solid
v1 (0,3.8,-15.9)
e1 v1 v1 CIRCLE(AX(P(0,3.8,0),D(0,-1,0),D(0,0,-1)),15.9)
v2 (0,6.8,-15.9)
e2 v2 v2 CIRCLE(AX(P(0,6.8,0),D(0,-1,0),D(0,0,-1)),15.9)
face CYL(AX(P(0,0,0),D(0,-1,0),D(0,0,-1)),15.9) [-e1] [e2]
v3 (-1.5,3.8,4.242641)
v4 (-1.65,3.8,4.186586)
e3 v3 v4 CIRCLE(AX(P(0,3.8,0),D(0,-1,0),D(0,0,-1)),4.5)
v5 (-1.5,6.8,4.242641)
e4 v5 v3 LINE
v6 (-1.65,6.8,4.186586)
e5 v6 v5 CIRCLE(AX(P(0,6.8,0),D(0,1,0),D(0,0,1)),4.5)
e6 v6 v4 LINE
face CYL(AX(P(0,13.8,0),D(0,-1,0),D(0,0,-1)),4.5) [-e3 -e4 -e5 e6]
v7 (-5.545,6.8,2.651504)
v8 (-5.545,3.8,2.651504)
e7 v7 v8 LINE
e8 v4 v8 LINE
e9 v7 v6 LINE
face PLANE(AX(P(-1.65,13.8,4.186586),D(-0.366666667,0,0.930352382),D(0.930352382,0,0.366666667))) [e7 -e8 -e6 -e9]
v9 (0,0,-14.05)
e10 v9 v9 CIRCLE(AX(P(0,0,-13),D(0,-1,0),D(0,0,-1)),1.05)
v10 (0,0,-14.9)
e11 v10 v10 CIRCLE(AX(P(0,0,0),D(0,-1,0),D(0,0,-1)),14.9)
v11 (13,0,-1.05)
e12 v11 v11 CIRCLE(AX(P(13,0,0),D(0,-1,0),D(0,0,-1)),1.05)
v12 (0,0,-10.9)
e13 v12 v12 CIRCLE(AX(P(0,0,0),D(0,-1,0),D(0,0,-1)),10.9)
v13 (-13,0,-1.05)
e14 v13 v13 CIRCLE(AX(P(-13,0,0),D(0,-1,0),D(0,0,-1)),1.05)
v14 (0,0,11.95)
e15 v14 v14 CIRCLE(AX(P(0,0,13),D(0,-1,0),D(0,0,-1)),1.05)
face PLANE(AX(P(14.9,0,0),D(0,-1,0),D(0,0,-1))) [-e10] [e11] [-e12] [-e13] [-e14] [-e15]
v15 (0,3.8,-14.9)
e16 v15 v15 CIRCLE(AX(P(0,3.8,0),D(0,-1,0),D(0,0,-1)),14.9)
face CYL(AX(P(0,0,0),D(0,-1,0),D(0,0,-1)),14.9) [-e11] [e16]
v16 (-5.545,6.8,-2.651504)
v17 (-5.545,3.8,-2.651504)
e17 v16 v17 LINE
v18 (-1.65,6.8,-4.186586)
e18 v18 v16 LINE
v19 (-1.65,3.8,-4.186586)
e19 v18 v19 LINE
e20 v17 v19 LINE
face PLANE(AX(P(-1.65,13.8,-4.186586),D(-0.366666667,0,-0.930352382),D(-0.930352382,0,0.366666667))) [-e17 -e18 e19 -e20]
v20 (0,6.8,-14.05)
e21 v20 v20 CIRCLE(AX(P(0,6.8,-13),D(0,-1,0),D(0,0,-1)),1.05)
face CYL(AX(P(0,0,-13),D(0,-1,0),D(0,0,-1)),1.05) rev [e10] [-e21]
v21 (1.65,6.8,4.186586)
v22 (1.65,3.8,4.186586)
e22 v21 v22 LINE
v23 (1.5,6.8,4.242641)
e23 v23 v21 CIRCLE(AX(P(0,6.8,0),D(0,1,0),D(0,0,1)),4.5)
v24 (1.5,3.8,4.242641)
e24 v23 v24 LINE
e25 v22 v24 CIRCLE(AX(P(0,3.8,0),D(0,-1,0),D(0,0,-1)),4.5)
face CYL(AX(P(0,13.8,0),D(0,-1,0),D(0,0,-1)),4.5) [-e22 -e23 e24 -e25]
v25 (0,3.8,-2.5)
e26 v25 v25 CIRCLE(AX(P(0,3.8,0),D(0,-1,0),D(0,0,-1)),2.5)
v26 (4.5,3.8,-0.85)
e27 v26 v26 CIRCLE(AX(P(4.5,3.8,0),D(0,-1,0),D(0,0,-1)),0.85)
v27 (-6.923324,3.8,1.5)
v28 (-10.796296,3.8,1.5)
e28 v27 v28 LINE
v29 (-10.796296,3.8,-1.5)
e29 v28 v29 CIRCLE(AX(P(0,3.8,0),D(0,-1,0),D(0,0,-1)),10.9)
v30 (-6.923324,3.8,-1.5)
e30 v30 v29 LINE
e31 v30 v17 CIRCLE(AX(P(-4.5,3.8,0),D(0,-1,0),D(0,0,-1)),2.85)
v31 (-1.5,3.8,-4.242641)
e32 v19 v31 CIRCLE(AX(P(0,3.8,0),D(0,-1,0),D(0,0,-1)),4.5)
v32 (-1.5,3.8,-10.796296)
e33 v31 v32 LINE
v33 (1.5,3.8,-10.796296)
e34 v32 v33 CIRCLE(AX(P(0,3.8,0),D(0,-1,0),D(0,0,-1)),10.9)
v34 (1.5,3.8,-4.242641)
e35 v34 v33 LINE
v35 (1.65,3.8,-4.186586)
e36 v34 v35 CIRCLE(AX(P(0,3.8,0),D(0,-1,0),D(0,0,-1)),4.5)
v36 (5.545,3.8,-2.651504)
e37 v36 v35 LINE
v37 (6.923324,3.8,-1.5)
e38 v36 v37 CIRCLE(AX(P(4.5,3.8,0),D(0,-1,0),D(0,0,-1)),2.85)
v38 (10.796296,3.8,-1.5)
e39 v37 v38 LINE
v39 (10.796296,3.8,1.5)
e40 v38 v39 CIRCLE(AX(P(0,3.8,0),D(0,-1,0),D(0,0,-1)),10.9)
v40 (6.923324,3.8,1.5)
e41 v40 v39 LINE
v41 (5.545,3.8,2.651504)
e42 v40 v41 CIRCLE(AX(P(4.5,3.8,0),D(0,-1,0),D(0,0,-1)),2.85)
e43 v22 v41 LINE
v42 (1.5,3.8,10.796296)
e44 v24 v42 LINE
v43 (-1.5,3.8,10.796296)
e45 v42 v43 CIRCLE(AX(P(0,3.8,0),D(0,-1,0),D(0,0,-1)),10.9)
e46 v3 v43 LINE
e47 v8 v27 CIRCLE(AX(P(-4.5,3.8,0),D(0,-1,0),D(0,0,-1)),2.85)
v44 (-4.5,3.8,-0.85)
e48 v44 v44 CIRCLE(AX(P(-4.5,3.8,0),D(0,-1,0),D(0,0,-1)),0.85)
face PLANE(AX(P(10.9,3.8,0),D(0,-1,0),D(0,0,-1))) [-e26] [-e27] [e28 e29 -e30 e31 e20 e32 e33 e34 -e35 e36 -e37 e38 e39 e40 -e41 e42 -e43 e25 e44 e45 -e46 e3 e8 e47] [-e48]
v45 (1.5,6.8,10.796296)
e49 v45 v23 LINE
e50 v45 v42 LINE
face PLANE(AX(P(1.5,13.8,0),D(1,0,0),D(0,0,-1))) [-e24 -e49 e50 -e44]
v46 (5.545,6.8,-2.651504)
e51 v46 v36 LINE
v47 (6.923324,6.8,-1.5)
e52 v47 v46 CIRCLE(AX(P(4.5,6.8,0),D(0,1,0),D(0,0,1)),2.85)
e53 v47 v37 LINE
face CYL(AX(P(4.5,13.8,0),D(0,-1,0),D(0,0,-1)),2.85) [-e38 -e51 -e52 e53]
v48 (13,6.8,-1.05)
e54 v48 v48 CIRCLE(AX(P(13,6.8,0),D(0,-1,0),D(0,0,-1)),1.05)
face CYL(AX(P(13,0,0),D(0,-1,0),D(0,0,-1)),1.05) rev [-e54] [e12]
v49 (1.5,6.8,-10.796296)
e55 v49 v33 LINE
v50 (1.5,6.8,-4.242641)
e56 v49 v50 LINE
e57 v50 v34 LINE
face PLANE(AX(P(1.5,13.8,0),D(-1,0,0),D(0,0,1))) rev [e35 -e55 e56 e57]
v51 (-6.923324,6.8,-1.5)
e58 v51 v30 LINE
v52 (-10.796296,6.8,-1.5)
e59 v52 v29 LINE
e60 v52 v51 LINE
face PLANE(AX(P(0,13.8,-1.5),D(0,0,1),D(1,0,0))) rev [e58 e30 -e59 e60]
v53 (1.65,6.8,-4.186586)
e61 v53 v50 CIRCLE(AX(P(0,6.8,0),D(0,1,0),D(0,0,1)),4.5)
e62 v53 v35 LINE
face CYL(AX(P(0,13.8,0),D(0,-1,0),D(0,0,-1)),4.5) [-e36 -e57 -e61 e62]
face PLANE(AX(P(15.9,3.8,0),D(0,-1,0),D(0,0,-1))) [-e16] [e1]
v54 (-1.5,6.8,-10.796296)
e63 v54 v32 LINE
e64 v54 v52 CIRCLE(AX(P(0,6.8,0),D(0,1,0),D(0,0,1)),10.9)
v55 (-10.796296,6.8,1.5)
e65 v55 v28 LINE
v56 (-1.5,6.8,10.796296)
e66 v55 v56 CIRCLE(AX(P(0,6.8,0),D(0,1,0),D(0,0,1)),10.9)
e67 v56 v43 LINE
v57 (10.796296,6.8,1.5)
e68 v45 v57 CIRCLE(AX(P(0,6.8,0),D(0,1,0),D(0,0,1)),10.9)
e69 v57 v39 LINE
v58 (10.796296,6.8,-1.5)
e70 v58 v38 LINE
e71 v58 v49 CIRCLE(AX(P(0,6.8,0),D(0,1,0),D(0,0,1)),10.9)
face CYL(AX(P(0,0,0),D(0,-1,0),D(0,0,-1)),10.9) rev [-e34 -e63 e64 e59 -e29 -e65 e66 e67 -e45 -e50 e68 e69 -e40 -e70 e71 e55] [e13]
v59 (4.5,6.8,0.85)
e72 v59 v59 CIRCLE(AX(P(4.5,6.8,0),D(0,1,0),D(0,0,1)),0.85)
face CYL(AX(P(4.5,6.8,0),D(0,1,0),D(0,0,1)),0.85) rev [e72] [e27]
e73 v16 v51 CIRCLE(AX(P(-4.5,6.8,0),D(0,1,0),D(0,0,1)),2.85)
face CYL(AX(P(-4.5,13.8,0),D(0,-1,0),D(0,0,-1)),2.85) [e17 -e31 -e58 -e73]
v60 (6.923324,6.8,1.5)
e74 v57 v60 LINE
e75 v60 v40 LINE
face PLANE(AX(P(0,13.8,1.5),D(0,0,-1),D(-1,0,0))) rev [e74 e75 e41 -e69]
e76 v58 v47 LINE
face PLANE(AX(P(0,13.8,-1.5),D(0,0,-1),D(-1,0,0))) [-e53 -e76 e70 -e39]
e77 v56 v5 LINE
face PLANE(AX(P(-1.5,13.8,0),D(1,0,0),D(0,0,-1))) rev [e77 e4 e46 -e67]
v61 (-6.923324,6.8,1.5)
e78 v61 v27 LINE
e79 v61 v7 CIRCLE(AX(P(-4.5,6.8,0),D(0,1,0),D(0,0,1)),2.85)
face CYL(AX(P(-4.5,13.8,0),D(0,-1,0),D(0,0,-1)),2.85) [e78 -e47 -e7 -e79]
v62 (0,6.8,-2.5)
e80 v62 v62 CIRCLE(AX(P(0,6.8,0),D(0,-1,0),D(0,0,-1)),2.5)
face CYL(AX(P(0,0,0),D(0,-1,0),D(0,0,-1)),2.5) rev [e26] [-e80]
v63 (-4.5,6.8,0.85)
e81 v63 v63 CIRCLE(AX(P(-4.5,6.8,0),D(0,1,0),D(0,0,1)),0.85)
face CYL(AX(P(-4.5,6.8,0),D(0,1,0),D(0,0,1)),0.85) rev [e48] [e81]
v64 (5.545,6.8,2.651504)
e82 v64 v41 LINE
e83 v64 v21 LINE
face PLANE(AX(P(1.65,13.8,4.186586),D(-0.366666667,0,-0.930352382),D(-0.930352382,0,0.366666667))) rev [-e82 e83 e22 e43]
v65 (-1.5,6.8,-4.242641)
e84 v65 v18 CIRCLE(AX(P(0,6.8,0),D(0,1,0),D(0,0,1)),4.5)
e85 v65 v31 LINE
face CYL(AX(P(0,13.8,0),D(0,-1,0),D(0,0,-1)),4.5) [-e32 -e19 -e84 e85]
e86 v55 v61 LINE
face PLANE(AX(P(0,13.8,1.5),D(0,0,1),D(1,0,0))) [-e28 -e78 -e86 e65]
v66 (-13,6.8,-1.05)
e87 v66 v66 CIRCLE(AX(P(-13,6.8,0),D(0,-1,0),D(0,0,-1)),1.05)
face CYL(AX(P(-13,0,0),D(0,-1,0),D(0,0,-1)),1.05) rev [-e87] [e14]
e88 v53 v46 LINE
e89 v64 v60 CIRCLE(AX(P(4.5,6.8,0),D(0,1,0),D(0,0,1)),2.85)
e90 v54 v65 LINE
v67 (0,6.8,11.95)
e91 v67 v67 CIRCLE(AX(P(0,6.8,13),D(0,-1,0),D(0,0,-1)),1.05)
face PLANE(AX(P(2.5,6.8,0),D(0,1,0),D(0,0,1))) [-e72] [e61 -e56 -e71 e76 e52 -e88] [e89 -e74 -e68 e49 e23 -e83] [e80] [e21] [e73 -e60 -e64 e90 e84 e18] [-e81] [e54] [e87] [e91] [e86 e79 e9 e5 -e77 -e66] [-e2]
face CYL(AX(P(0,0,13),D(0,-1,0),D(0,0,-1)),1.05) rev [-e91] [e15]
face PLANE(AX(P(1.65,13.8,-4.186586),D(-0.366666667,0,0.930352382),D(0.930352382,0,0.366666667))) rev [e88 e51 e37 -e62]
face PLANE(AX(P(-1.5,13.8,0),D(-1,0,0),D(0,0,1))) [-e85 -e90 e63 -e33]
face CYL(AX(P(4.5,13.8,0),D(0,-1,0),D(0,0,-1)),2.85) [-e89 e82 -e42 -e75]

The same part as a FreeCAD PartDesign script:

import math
import FreeCAD as App
import Part
import Sketcher


def add_polygon(sketch, points):
    """Adds a closed chain of lines whose ends are joined by coincident constraints."""
    first, n = sketch.GeometryCount, len(points)
    for a, b in zip(points, points[1:] + points[:1]):
        sketch.addGeometry(Part.LineSegment(App.Vector(*a, 0), App.Vector(*b, 0)), False)
    for i in range(n):
        sketch.addConstraint(Sketcher.Constraint("Coincident", first + i, 2, first + (i + 1) % n, 1))

doc = App.newDocument("Part")
body = doc.addObject("PartDesign::Body", "Body")

sketch1 = doc.addObject("Sketcher::SketchObject", "Sketch")
body.addObject(sketch1)
sketch1.AttachmentSupport = (doc.XY_Plane, [""])
sketch1.MapMode = "FlatFace"
add_polygon(sketch1, [(15.9, 6.8), (2.5, 6.8), (2.5, 3.8), (10.9, 3.8), (10.9, 0), (14.9, 0), (14.9, 3.8), (15.9, 3.8)])
sketch1.addConstraint([
    Sketcher.Constraint("Horizontal", 0),
    Sketcher.Constraint("Vertical", 1),
    Sketcher.Constraint("Horizontal", 2),
    Sketcher.Constraint("Vertical", 3),
    Sketcher.Constraint("Horizontal", 4),
    Sketcher.Constraint("Vertical", 5),
    Sketcher.Constraint("Horizontal", 6),
    Sketcher.Constraint("Vertical", 7),
    Sketcher.Constraint("PointOnObject", 3, 2, -1),
    Sketcher.Constraint("Horizontal", 2, 2, 5, 2),
    Sketcher.Constraint("DistanceX", 4, 1, 4, 2, 4.0),
    Sketcher.Constraint("DistanceX", 6, 1, 6, 2, 1.0),
    Sketcher.Constraint("DistanceY", 1, 2, 1, 1, 3.0),
    Sketcher.Constraint("DistanceX", 0, 2, 0, 1, 13.4),
    Sketcher.Constraint("DistanceY", 3, 2, 3, 1, 3.8),
    Sketcher.Constraint("DistanceX", -1, 1, 0, 2, 2.5),
])
revolution = doc.addObject("PartDesign::Revolution", "Revolution")
body.addObject(revolution)
revolution.Profile = sketch1
revolution.ReferenceAxis = (sketch1, ["V_Axis"])
revolution.Angle = 360

sketch2 = doc.addObject("Sketcher::SketchObject", "Sketch001")
body.addObject(sketch2)
sketch2.AttachmentSupport = (doc.XZ_Plane, [""])
sketch2.MapMode = "FlatFace"
sketch2.AttachmentOffset = App.Placement(App.Vector(0, 0, -6.8), App.Rotation())
sketch2.addGeometry([
    Part.Circle(App.Vector(-4.5, 0, 0), App.Vector(0, 0, 1), 0.8),
    Part.Circle(App.Vector(4.5, 0, 0), App.Vector(0, 0, 1), 0.8),
], False)
sketch2.addConstraint([
    Sketcher.Constraint("Equal", 0, 1),
    Sketcher.Constraint("Symmetric", 0, 3, 1, 3, -1, 1),
    Sketcher.Constraint("PointOnObject", 0, 3, -1),
    Sketcher.Constraint("Diameter", 0, 1.7),
    Sketcher.Constraint("DistanceX", 0, 3, 1, 3, 9.0),
])
doc.recompute()
hole = doc.addObject("PartDesign::Hole", "Hole")
body.addObject(hole)
hole.Profile = sketch2
hole.ThreadType = "None"
hole.Diameter = 1.7
hole.DepthType = "Dimension"
hole.Depth = 6
hole.DrillPoint = "Flat"
hole.Reversed = True

sketch3 = doc.addObject("Sketcher::SketchObject", "Sketch002")
body.addObject(sketch3)
sketch3.AttachmentSupport = (doc.XZ_Plane, [""])
sketch3.MapMode = "FlatFace"
sketch3.addGeometry([
    Part.Circle(App.Vector(13, 0, 0), App.Vector(0, 0, 1), 1.1),
    Part.Circle(App.Vector(0, -13, 0), App.Vector(0, 0, 1), 1.1),
    Part.Circle(App.Vector(-13, 0, 0), App.Vector(0, 0, 1), 1.1),
    Part.Circle(App.Vector(0, 13, 0), App.Vector(0, 0, 1), 1.1),
], False)
sketch3.addConstraint([
    Sketcher.Constraint("Equal", 0, 1),
    Sketcher.Constraint("Equal", 1, 2),
    Sketcher.Constraint("Equal", 2, 3),
    Sketcher.Constraint("Symmetric", 0, 3, 2, 3, -1, 1),
    Sketcher.Constraint("Symmetric", 1, 3, 3, 3, -1, 1),
    Sketcher.Constraint("PointOnObject", 0, 3, -1),
    Sketcher.Constraint("PointOnObject", 1, 3, -2),
    Sketcher.Constraint("Diameter", 0, 2.1),
    Sketcher.Constraint("DistanceX", -1, 1, 0, 3, 13.0),
    Sketcher.Constraint("DistanceY", 1, 3, -1, 1, 13.0),
])
doc.recompute()
hole2 = doc.addObject("PartDesign::Hole", "Hole001")
body.addObject(hole2)
hole2.Profile = sketch3
hole2.ThreadType = "None"
hole2.Diameter = 2.1
hole2.DepthType = "ThroughAll"

sketch4 = doc.addObject("Sketcher::SketchObject", "Sketch003")
body.addObject(sketch4)
sketch4.AttachmentSupport = (doc.XZ_Plane, [""])
sketch4.MapMode = "FlatFace"
sketch4.AttachmentOffset = App.Placement(App.Vector(0, 0, -13.8), App.Rotation())
sketch4.addGeometry([
    Part.LineSegment(App.Vector(-5.54, 2.65, 0), App.Vector(-1.65, 4.19, 0)),
    Part.ArcOfCircle(Part.Circle(App.Vector(0, 0, 0), App.Vector(0, 0, 1), 4.5), math.radians(109.47), math.radians(111.51)),
    Part.LineSegment(App.Vector(-1.5, 4.24, 0), App.Vector(-1.5, 10.8, 0)),
    Part.ArcOfCircle(Part.Circle(App.Vector(0, 0, 0), App.Vector(0, 0, 1), 10.9), math.radians(98), math.radians(172)),
    Part.LineSegment(App.Vector(-10.8, 1.5, 0), App.Vector(-6.92, 1.5, 0)),
    Part.ArcOfCircle(Part.Circle(App.Vector(-4.5, 0, 0), App.Vector(0, 0, 1), 2.85), math.radians(112), math.radians(148)),
    Part.ArcOfCircle(Part.Circle(App.Vector(-4.5, 0, 0), App.Vector(0, 0, 1), 2.85), math.radians(-148), math.radians(-112)),
    Part.LineSegment(App.Vector(-6.92, -1.5, 0), App.Vector(-10.8, -1.5, 0)),
    Part.ArcOfCircle(Part.Circle(App.Vector(0, 0, 0), App.Vector(0, 0, 1), 10.9), math.radians(-172), math.radians(-98)),
    Part.LineSegment(App.Vector(-1.5, -10.8, 0), App.Vector(-1.5, -4.24, 0)),
    Part.ArcOfCircle(Part.Circle(App.Vector(0, 0, 0), App.Vector(0, 0, 1), 4.5), math.radians(-111.51), math.radians(-109.47)),
    Part.LineSegment(App.Vector(-1.65, -4.19, 0), App.Vector(-5.54, -2.65, 0)),
    Part.LineSegment(App.Vector(1.5, 10.8, 0), App.Vector(1.5, 4.24, 0)),
    Part.ArcOfCircle(Part.Circle(App.Vector(0, 0, 0), App.Vector(0, 0, 1), 4.5), math.radians(68.49), math.radians(70.53)),
    Part.LineSegment(App.Vector(1.65, 4.19, 0), App.Vector(5.54, 2.65, 0)),
    Part.ArcOfCircle(Part.Circle(App.Vector(4.5, 0, 0), App.Vector(0, 0, 1), 2.85), math.radians(32), math.radians(68)),
    Part.LineSegment(App.Vector(6.92, 1.5, 0), App.Vector(10.8, 1.5, 0)),
    Part.ArcOfCircle(Part.Circle(App.Vector(0, 0, 0), App.Vector(0, 0, 1), 10.9), math.radians(8), math.radians(82)),
    Part.ArcOfCircle(Part.Circle(App.Vector(0, 0, 0), App.Vector(0, 0, 1), 4.5), math.radians(-70.53), math.radians(-68.49)),
    Part.LineSegment(App.Vector(1.5, -4.24, 0), App.Vector(1.5, -10.8, 0)),
    Part.ArcOfCircle(Part.Circle(App.Vector(0, 0, 0), App.Vector(0, 0, 1), 10.9), math.radians(-82), math.radians(-8)),
    Part.LineSegment(App.Vector(10.8, -1.5, 0), App.Vector(6.92, -1.5, 0)),
    Part.ArcOfCircle(Part.Circle(App.Vector(4.5, 0, 0), App.Vector(0, 0, 1), 2.85), math.radians(-68), math.radians(-32)),
    Part.LineSegment(App.Vector(5.54, -2.65, 0), App.Vector(1.65, -4.19, 0)),
], False)
sketch4.addConstraint([
    Sketcher.Constraint("Tangent", 0, 2, 1, 2),
    Sketcher.Constraint("Coincident", 1, 1, 2, 1),
    Sketcher.Constraint("Coincident", 2, 2, 3, 1),
    Sketcher.Constraint("Coincident", 3, 2, 4, 1),
    Sketcher.Constraint("Coincident", 4, 2, 5, 2),
    Sketcher.Constraint("Tangent", 5, 1, 0, 1),
    Sketcher.Constraint("Coincident", 6, 1, 7, 1),
    Sketcher.Constraint("Coincident", 7, 2, 8, 1),
    Sketcher.Constraint("Coincident", 8, 2, 9, 1),
    Sketcher.Constraint("Coincident", 9, 2, 10, 2),
    Sketcher.Constraint("Tangent", 10, 1, 11, 1),
    Sketcher.Constraint("Tangent", 11, 2, 6, 2),
    Sketcher.Constraint("Coincident", 12, 2, 13, 2),
    Sketcher.Constraint("Tangent", 13, 1, 14, 1),
    Sketcher.Constraint("Tangent", 14, 2, 15, 2),
    Sketcher.Constraint("Coincident", 15, 1, 16, 1),
    Sketcher.Constraint("Coincident", 16, 2, 17, 1),
    Sketcher.Constraint("Coincident", 17, 2, 12, 1),
    Sketcher.Constraint("Coincident", 18, 1, 19, 1),
    Sketcher.Constraint("Coincident", 19, 2, 20, 1),
    Sketcher.Constraint("Coincident", 20, 2, 21, 1),
    Sketcher.Constraint("Coincident", 21, 2, 22, 2),
    Sketcher.Constraint("Tangent", 22, 1, 23, 1),
    Sketcher.Constraint("Tangent", 23, 2, 18, 2),
    Sketcher.Constraint("Vertical", 2),
    Sketcher.Constraint("Horizontal", 4),
    Sketcher.Constraint("Horizontal", 7),
    Sketcher.Constraint("Vertical", 9),
    Sketcher.Constraint("Vertical", 12),
    Sketcher.Constraint("Horizontal", 16),
    Sketcher.Constraint("Vertical", 19),
    Sketcher.Constraint("Horizontal", 21),
    Sketcher.Constraint("Coincident", 1, 3, -1, 1),
    Sketcher.Constraint("Coincident", 3, 3, -1, 1),
    Sketcher.Constraint("Coincident", 8, 3, -1, 1),
    Sketcher.Constraint("Coincident", 10, 3, -1, 1),
    Sketcher.Constraint("Coincident", 13, 3, -1, 1),
    Sketcher.Constraint("Coincident", 17, 3, -1, 1),
    Sketcher.Constraint("Coincident", 18, 3, -1, 1),
    Sketcher.Constraint("Coincident", 20, 3, -1, 1),
    Sketcher.Constraint("Coincident", 6, 3, 5, 3),
    Sketcher.Constraint("Coincident", 22, 3, 15, 3),
    Sketcher.Constraint("Equal", 5, 6),
    Sketcher.Constraint("Equal", 3, 8),
    Sketcher.Constraint("Equal", 1, 10),
    Sketcher.Constraint("Equal", 10, 13),
    Sketcher.Constraint("Equal", 6, 15),
    Sketcher.Constraint("Equal", 8, 17),
    Sketcher.Constraint("Equal", 13, 18),
    Sketcher.Constraint("Equal", 17, 20),
    Sketcher.Constraint("Equal", 15, 22),
    Sketcher.Constraint("Symmetric", 5, 3, 15, 3, -1, 1),
    Sketcher.Constraint("Symmetric", 4, 2, 15, 1, -2),
    Sketcher.Constraint("Horizontal", 1, 1, 12, 2),
    Sketcher.Constraint("Horizontal", 9, 2, 18, 1),
    Sketcher.Constraint("Horizontal", 7, 2, 20, 2),
    Sketcher.Constraint("Vertical", 4, 2, 6, 1),
    Sketcher.Constraint("Vertical", 2, 2, 8, 2),
    Sketcher.Constraint("Radius", 1, 4.500001),
    Sketcher.Constraint("Radius", 3, 10.9),
    Sketcher.Constraint("Radius", 5, 2.85),
    Sketcher.Constraint("DistanceY", 6, 1, 4, 2, 3.0),
    Sketcher.Constraint("DistanceX", 1, 1, 12, 2, 3.0),
    Sketcher.Constraint("DistanceX", 5, 3, -1, 1, 4.5),
])
pocket1 = doc.addObject("PartDesign::Pocket", "Pocket")
body.addObject(pocket1)
pocket1.Profile = sketch4
pocket1.Length = 10
pocket1.Reversed = True

doc.recompute()
